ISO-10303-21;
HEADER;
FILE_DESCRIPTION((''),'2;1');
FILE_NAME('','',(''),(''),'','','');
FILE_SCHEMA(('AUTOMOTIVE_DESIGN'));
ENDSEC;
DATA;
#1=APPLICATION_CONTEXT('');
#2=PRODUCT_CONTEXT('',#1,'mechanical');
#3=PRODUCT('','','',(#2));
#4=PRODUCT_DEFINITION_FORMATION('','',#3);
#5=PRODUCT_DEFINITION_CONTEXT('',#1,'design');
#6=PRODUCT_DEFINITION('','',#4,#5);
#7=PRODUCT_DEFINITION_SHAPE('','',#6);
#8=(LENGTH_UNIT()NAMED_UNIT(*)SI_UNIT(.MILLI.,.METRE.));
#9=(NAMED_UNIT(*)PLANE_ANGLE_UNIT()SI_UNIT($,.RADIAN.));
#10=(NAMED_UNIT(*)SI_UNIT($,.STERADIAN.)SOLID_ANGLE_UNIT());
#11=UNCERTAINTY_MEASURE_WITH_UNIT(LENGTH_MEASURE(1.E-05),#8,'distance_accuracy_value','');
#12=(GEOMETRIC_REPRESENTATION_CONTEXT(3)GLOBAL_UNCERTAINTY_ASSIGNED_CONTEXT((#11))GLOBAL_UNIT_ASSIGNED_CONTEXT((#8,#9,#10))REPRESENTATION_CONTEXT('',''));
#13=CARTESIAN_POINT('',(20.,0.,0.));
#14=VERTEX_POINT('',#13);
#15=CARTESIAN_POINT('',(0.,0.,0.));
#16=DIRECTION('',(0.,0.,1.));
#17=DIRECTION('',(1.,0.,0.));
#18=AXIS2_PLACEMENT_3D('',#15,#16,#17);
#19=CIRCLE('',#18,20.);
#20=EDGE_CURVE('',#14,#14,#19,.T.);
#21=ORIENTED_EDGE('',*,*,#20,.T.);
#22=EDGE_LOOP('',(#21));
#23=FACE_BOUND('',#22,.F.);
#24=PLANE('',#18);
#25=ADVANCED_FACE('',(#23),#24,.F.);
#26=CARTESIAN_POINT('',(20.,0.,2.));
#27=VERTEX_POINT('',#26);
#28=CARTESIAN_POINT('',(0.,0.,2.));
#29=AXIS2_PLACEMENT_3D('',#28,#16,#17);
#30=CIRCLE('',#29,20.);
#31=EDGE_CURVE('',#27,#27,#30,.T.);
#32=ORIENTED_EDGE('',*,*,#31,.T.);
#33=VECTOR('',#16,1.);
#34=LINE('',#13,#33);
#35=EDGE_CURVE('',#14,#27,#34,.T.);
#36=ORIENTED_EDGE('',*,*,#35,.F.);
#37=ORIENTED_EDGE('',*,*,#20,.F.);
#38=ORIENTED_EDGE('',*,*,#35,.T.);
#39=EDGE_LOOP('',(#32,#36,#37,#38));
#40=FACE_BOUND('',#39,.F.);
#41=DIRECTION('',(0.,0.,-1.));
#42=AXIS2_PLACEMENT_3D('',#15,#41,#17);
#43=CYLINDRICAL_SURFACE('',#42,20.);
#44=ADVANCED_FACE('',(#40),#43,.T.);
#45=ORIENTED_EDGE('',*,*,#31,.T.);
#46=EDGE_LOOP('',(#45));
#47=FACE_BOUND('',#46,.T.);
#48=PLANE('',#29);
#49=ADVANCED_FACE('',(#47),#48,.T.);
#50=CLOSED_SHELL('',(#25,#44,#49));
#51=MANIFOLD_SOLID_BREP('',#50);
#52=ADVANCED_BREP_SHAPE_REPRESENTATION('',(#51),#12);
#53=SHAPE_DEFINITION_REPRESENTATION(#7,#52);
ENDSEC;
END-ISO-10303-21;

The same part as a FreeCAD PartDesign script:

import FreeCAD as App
import Part
import Sketcher

doc = App.newDocument("Part")
body = doc.addObject("PartDesign::Body", "Body")

sketch1 = body.newObject("Sketcher::SketchObject", "Sketch")
sketch1.AttachmentSupport = (doc.getObject("XY_Plane"), [""])
sketch1.MapMode = "FlatFace"
sketch1.addGeometry(Part.Circle(App.Vector(0, 0, 0), App.Vector(0, 0, 1), 20), False)
sketch1.addConstraint(Sketcher.Constraint("Coincident", 0, 3, -1, 1))
sketch1.addConstraint(Sketcher.Constraint("Diameter", 0, 40.0))
pad1 = body.newObject("PartDesign::Pad", "Pad")
pad1.Profile = sketch1
pad1.Length = 2

doc.recompute()
